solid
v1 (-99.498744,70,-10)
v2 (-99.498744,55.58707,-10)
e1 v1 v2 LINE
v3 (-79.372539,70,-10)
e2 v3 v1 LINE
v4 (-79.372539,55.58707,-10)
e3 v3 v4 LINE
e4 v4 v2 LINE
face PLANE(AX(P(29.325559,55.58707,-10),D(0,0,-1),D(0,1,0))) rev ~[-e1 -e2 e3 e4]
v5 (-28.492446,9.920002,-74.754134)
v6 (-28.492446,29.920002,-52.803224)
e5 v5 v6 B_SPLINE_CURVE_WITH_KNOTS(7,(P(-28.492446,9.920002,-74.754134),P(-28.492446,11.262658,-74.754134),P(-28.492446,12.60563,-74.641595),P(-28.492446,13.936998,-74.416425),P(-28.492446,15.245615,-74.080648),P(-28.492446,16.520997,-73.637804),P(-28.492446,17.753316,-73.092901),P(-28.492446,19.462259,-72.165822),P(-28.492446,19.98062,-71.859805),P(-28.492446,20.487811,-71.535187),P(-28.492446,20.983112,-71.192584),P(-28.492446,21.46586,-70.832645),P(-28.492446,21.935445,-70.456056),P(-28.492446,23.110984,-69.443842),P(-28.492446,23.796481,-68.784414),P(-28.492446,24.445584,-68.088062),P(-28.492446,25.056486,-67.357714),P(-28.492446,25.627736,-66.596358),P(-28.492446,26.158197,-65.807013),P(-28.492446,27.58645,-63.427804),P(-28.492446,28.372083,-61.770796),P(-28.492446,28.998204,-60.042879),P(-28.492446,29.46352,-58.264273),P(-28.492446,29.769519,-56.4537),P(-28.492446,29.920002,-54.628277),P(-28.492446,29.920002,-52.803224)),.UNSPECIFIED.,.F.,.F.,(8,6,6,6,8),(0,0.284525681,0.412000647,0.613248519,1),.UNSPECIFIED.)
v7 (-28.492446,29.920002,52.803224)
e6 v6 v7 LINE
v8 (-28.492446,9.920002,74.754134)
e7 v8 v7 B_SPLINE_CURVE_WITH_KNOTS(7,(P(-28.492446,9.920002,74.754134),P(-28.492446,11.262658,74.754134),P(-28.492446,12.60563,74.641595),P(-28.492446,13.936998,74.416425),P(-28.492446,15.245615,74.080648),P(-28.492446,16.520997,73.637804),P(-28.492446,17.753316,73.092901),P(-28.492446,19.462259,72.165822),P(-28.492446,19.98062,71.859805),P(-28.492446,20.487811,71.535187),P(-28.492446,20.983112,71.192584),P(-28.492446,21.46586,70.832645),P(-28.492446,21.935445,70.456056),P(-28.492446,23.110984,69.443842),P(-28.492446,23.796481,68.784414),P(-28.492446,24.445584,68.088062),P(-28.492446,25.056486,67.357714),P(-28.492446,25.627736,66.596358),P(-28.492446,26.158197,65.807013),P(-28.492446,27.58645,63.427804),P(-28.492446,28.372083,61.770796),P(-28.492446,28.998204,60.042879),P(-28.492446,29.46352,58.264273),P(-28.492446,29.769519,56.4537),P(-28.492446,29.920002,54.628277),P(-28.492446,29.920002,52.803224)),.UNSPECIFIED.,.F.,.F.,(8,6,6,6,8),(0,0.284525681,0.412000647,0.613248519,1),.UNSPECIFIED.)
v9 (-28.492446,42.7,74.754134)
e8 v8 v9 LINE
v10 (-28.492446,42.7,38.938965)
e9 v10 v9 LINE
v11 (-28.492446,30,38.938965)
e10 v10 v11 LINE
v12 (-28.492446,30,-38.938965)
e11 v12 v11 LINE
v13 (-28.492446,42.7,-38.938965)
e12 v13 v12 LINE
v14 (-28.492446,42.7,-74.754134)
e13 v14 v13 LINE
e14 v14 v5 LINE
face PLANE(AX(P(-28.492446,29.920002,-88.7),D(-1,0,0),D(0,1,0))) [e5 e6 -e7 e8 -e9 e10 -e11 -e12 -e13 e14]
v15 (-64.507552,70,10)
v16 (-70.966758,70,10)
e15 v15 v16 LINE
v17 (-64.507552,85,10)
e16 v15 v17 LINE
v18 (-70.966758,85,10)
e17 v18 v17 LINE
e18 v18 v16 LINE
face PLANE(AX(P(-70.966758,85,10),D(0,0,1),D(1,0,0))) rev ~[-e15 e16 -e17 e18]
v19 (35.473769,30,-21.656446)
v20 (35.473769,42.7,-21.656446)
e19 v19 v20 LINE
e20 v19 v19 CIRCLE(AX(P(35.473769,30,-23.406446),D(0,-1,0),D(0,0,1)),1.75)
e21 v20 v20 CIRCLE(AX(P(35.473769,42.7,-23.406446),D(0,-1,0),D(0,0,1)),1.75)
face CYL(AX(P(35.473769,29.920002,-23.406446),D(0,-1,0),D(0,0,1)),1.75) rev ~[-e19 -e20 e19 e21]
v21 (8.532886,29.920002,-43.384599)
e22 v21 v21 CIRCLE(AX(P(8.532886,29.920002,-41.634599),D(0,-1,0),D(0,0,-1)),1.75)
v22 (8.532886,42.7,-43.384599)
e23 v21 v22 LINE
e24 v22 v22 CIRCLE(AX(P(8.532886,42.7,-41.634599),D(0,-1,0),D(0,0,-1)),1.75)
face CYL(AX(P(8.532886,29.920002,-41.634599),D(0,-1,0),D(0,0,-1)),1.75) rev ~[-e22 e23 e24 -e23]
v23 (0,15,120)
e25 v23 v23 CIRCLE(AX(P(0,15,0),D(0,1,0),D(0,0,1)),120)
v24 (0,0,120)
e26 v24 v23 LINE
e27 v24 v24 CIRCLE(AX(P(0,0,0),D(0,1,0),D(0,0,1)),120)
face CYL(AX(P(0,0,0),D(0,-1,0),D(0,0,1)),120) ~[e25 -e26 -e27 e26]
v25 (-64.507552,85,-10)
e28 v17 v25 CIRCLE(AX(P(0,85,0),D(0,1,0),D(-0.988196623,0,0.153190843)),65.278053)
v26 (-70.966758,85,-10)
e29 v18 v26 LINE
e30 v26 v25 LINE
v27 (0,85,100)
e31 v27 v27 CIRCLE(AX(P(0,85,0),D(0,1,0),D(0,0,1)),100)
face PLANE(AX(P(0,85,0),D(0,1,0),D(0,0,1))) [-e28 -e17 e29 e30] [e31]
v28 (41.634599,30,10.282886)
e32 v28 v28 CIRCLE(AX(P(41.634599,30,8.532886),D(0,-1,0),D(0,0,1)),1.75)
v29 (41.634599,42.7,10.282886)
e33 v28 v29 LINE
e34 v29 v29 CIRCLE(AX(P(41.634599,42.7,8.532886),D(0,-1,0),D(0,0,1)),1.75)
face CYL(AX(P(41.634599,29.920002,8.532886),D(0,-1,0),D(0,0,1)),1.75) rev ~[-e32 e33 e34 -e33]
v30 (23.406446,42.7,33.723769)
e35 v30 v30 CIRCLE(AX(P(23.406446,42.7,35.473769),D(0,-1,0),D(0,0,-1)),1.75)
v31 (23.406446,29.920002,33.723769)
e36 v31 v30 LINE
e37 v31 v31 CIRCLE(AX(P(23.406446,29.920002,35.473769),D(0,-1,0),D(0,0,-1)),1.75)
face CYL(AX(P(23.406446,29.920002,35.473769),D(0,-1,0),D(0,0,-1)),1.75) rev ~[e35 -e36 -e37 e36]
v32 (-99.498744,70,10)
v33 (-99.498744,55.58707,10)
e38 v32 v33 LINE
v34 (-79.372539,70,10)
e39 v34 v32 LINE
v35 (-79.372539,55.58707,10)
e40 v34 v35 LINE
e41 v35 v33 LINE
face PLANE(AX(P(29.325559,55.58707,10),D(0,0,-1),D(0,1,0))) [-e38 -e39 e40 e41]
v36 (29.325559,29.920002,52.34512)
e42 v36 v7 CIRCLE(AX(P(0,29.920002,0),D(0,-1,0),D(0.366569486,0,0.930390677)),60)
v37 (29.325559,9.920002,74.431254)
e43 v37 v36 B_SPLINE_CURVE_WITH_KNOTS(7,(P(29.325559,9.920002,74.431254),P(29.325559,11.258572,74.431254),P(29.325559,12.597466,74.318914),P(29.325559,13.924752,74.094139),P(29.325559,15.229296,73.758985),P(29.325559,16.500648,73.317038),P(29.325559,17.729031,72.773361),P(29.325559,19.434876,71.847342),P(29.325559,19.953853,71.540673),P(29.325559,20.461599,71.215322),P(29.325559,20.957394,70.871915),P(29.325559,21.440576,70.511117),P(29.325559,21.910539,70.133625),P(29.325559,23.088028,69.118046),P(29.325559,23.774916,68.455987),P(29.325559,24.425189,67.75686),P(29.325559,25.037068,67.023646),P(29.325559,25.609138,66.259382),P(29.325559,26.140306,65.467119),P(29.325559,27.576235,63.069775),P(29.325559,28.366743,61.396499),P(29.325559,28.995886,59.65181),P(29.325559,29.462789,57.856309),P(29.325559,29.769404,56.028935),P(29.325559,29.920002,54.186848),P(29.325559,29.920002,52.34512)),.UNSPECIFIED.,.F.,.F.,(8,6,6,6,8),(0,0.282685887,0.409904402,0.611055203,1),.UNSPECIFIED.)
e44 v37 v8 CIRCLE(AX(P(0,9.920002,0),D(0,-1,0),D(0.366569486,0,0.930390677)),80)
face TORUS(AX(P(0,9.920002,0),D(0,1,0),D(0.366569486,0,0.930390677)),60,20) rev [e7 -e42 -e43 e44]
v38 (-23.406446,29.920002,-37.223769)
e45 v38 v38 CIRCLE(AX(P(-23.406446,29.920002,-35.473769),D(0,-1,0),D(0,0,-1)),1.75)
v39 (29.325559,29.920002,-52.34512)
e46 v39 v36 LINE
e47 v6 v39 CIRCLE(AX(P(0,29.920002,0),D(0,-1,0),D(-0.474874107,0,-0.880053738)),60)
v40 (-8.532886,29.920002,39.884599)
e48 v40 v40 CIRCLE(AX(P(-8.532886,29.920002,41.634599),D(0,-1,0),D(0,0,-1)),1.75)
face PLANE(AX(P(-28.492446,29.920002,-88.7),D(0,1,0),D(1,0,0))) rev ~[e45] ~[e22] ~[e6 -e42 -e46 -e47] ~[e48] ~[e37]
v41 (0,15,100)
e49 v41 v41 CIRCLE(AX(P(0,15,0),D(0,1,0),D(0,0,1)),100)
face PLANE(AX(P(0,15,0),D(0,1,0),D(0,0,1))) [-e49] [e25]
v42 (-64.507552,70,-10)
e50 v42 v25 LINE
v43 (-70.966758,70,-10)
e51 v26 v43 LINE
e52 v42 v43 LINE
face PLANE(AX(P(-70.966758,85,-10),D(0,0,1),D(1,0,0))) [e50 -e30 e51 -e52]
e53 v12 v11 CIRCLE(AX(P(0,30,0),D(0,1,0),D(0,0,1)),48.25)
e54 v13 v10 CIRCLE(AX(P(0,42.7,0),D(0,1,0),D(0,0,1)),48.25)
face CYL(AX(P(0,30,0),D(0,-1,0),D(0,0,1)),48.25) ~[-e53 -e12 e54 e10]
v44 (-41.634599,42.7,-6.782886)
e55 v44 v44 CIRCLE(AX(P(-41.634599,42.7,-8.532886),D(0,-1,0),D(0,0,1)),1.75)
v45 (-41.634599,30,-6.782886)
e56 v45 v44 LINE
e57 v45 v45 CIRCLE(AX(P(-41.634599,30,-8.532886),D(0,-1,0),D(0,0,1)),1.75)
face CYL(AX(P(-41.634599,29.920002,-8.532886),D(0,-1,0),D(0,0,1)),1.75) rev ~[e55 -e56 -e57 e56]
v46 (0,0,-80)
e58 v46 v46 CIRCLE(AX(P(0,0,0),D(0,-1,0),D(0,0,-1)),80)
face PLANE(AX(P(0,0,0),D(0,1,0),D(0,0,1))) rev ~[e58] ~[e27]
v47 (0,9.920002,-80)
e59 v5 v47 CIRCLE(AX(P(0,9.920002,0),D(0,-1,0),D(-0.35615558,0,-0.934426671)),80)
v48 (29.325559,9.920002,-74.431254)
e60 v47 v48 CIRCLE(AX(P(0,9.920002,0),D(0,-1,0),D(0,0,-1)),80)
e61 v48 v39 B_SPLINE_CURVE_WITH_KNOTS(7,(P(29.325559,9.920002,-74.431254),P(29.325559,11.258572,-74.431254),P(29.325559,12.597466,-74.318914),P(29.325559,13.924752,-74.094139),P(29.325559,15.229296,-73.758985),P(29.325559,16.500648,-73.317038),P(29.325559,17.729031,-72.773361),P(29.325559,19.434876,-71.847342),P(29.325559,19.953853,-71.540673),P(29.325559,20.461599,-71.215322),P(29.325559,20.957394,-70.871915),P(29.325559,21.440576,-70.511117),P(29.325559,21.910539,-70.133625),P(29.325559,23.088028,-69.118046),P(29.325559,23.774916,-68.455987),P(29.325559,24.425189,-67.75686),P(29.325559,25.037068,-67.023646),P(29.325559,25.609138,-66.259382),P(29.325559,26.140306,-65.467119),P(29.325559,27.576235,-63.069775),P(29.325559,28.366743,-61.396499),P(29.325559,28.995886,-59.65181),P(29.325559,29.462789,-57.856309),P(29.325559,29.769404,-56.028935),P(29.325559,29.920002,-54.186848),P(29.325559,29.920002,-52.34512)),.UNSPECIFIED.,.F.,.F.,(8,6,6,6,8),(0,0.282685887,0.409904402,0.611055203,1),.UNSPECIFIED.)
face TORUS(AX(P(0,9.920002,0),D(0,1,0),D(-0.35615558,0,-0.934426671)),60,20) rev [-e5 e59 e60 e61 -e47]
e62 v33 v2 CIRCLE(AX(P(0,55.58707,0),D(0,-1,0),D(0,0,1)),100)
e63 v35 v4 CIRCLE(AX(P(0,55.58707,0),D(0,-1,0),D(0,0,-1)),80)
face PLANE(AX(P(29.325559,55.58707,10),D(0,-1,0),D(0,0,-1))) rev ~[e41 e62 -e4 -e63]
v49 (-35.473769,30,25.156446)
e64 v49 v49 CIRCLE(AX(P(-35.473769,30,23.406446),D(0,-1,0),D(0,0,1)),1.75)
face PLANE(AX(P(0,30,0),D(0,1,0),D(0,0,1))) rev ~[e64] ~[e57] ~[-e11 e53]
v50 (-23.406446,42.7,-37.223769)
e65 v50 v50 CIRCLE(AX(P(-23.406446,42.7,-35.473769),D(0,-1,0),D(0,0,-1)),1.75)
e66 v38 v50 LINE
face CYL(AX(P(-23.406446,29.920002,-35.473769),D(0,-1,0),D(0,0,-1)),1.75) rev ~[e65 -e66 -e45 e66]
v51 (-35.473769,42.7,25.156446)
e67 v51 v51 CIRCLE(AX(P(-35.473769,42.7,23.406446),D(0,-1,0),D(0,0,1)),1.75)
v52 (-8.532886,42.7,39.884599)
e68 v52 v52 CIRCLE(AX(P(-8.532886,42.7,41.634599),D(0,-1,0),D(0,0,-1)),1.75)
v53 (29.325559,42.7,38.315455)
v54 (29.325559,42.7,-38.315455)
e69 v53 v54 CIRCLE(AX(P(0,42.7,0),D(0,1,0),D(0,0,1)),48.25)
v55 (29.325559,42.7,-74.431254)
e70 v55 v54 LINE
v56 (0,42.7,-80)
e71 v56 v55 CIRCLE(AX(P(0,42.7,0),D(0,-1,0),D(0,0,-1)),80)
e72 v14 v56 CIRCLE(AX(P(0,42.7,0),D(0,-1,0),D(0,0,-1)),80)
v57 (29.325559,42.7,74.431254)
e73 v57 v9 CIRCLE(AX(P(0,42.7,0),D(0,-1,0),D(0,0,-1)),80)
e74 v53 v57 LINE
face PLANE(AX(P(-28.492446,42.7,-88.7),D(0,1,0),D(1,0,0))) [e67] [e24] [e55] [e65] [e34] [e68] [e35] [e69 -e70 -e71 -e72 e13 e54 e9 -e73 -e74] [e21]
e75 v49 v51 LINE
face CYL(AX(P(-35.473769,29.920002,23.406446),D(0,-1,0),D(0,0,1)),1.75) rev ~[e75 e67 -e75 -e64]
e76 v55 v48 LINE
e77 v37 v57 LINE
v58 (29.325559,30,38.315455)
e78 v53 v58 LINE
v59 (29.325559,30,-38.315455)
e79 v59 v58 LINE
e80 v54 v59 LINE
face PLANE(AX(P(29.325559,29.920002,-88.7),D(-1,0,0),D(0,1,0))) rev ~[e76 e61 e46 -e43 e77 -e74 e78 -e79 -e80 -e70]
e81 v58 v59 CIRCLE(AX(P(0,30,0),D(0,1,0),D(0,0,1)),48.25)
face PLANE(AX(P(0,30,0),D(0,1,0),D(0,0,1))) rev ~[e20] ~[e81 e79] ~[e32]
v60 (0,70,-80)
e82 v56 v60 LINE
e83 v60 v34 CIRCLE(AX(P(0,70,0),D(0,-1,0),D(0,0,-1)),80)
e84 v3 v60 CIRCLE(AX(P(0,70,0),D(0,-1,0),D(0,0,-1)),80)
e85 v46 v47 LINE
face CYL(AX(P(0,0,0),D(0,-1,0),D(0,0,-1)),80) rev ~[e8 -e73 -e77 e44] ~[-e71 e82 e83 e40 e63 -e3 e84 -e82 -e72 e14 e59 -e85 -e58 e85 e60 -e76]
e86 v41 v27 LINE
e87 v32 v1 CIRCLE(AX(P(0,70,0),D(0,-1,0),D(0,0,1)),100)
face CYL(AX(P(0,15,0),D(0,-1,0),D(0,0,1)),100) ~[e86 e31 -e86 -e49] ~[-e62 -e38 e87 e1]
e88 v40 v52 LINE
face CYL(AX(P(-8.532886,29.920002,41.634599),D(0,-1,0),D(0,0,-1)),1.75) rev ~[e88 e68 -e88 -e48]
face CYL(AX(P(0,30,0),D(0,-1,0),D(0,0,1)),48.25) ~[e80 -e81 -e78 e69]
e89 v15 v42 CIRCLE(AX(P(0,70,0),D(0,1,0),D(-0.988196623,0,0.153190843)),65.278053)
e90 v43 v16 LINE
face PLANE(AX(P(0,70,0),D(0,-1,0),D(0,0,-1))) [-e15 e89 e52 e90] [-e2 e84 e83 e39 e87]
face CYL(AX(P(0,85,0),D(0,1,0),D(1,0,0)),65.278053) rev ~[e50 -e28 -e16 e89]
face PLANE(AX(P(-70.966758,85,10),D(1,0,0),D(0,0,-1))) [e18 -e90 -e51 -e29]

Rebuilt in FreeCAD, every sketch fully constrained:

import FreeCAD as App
import Part
import Sketcher

V = App.Vector
Q = App.Units.Quantity


def edges_at(feature, points):
    """Names of the edges that pass closest to the given points."""
    edges = feature.Shape.Edges
    near = lambda p: min(range(len(edges)), key=lambda i: edges[i].distToShape(Part.Vertex(*p))[0])
    return sorted({f"Edge{near(p) + 1}" for p in points})

doc = App.newDocument("Part")
body = doc.addObject("PartDesign::Body", "Body")

# Sketch on XZ plane
sketch1 = body.newObject("Sketcher::SketchObject", "Sketch")
sketch1.AttachmentSupport = (doc.getObject("XZ_Plane"), [""])
sketch1.MapMode = "FlatFace"
sketch1.addGeometry(Part.Circle(V(0, 0, 0), V(0, 0, 1), 120), False)
sketch1.addConstraint(Sketcher.Constraint("Coincident", 0, 3, -1, 1))
sketch1.addConstraint(Sketcher.Constraint("Diameter", 0, Q("240 mm")))
pad1 = body.newObject("PartDesign::Pad", "Pad")
pad1.Profile = sketch1
pad1.Length = 15
pad1.Reversed = True

# Sketch on XZ plane
sketch2 = body.newObject("Sketcher::SketchObject", "Sketch001")
sketch2.AttachmentSupport = (doc.getObject("XZ_Plane"), [""])
sketch2.MapMode = "FlatFace"
sketch2.AttachmentOffset = App.Placement(V(0, 0, -15), App.Rotation())
sketch2.addGeometry(Part.Circle(V(0, 0, 0), V(0, 0, 1), 100), False)
sketch2.addConstraint(Sketcher.Constraint("Coincident", 0, 3, -1, 1))
sketch2.addConstraint(Sketcher.Constraint("Diameter", 0, Q("200 mm")))
pad2 = body.newObject("PartDesign::Pad", "Pad001")
pad2.Profile = sketch2
pad2.Length = 70
pad2.Reversed = True

# Sketch on XZ plane
sketch3 = body.newObject("Sketcher::SketchObject", "Sketch002")
sketch3.AttachmentSupport = (doc.getObject("XZ_Plane"), [""])
sketch3.MapMode = "FlatFace"
sketch3.addGeometry(Part.Circle(V(0, 0, 0), V(0, 0, 1), 80), False)
sketch3.addConstraint(Sketcher.Constraint("Coincident", 0, 3, -1, 1))
sketch3.addConstraint(Sketcher.Constraint("Diameter", 0, Q("160 mm")))
pocket1 = body.newObject("PartDesign::Pocket", "Pocket")
pocket1.Profile = sketch3
pocket1.Length = 70

# Sketch on XZ plane
sketch4 = body.newObject("Sketcher::SketchObject", "Sketch003")
sketch4.AttachmentSupport = (doc.getObject("XZ_Plane"), [""])
sketch4.MapMode = "FlatFace"
sketch4.AttachmentOffset = App.Placement(V(0, 0, -85), App.Rotation())
sketch4.addGeometry(Part.Circle(V(0, 0, 0), V(0, 0, 1), 48), False)
sketch4.addConstraint(Sketcher.Constraint("Coincident", 0, 3, -1, 1))
sketch4.addConstraint(Sketcher.Constraint("Diameter", 0, Q("96.5 mm")))
pocket2 = body.newObject("PartDesign::Pocket", "Pocket001")
pocket2.Profile = sketch4
pocket2.Length = 65
pocket2.Reversed = True
body2 = doc.addObject("PartDesign::Body", "Body001")

# Sketch on XZ plane
sketch5 = body2.newObject("Sketcher::SketchObject", "Sketch004")
sketch5.AttachmentSupport = (doc.getObject("XZ_Plane001"), [""])
sketch5.MapMode = "FlatFace"
sketch5.AttachmentOffset = App.Placement(V(0, 0, -30), App.Rotation())
sketch5.addGeometry(Part.Circle(V(0, 0, 0), V(0, 0, 1), 48), False)
sketch5.addConstraint(Sketcher.Constraint("Coincident", 0, 3, -1, 1))
sketch5.addConstraint(Sketcher.Constraint("Diameter", 0, Q("96.5 mm")))
pad3 = body2.newObject("PartDesign::Pad", "Pad002")
pad3.Profile = sketch5
pad3.Length = 12.7
pad3.Reversed = True
body.AllowCompound = True
doc.recompute()

boolean = body.newObject("PartDesign::Boolean", "Boolean")
boolean.Type = "Fuse"
boolean.addObjects([body2])

# Sketch on XY plane
sketch6 = body.newObject("Sketcher::SketchObject", "Sketch005")
sketch6.AttachmentSupport = (doc.getObject("XY_Plane"), [""])
sketch6.MapMode = "FlatFace"
sketch6.addGeometry(Part.LineSegment(V(-28, 43, 0), V(-28, 30, 0)), False)
sketch6.addGeometry(Part.LineSegment(V(-28, 30, 0), V(29, 30, 0)), False)
sketch6.addGeometry(Part.LineSegment(V(29, 30, 0), V(29, 43, 0)), False)
sketch6.addGeometry(Part.LineSegment(V(29, 43, 0), V(-28, 43, 0)), False)
sketch6.addConstraint(Sketcher.Constraint("Coincident", 0, 2, 1, 1))
sketch6.addConstraint(Sketcher.Constraint("Coincident", 1, 2, 2, 1))
sketch6.addConstraint(Sketcher.Constraint("Coincident", 2, 2, 3, 1))
sketch6.addConstraint(Sketcher.Constraint("Coincident", 3, 2, 0, 1))
sketch6.addConstraint(Sketcher.Constraint("Vertical", 0))
sketch6.addConstraint(Sketcher.Constraint("Horizontal", 1))
sketch6.addConstraint(Sketcher.Constraint("Vertical", 2))
sketch6.addConstraint(Sketcher.Constraint("Horizontal", 3))
sketch6.addConstraint(Sketcher.Constraint("DistanceY", 0, 2, 0, 1, Q("12.779998 mm")))
sketch6.addConstraint(Sketcher.Constraint("DistanceY", -1, 1, 2, 2, Q("42.7 mm")))
sketch6.addConstraint(Sketcher.Constraint("DistanceX", 1, 1, 1, 2, Q("57.818005 mm")))
sketch6.addConstraint(Sketcher.Constraint("DistanceX", -1, 1, 1, 2, Q("29.325559 mm")))
pad4 = body.newObject("PartDesign::Pad", "Pad003")
pad4.Profile = sketch6
pad4.Type = "TwoLengths"
pad4.Length = 85.7
pad4.Length2 = 88.7
doc.recompute()

fillet = body.newObject("PartDesign::Fillet", "Fillet")
fillet.Base = (pad4, edges_at(pad4, [(0.447, 29.92, 79.999)]))
fillet.Radius = 20
doc.recompute()

fillet2 = body.newObject("PartDesign::Fillet", "Fillet001")
fillet2.Base = (fillet, edges_at(fillet, [(14.925, 29.92, -78.595)]))
fillet2.Radius = 20

# Sketch on XZ plane
sketch7 = body.newObject("Sketcher::SketchObject", "Sketch006")
sketch7.AttachmentSupport = (doc.getObject("XZ_Plane"), [""])
sketch7.MapMode = "FlatFace"
sketch7.AttachmentOffset = App.Placement(V(0, 0, -85), App.Rotation())
sketch7.addGeometry(Part.LineSegment(V(-71, -10, 0), V(-71, 10, 0)), False)
sketch7.addGeometry(Part.LineSegment(V(-71, 10, 0), V(-47, 10, 0)), False)
sketch7.addGeometry(Part.LineSegment(V(-47, 10, 0), V(-47, -10, 0)), False)
sketch7.addGeometry(Part.LineSegment(V(-47, -10, 0), V(-71, -10, 0)), False)
sketch7.addConstraint(Sketcher.Constraint("Coincident", 0, 2, 1, 1))
sketch7.addConstraint(Sketcher.Constraint("Coincident", 1, 2, 2, 1))
sketch7.addConstraint(Sketcher.Constraint("Coincident", 2, 2, 3, 1))
sketch7.addConstraint(Sketcher.Constraint("Coincident", 3, 2, 0, 1))
sketch7.addConstraint(Sketcher.Constraint("Vertical", 0))
sketch7.addConstraint(Sketcher.Constraint("Horizontal", 1))
sketch7.addConstraint(Sketcher.Constraint("Vertical", 2))
sketch7.addConstraint(Sketcher.Constraint("Horizontal", 3))
sketch7.addConstraint(Sketcher.Constraint("DistanceY", 0, 1, 0, 2, Q("20 mm")))
sketch7.addConstraint(Sketcher.Constraint("DistanceY", -1, 1, 0, 2, Q("10 mm")))
sketch7.addConstraint(Sketcher.Constraint("DistanceX", 1, 1, 1, 2, Q("23.933516 mm")))
sketch7.addConstraint(Sketcher.Constraint("DistanceX", 0, 2, -1, 1, Q("70.966758 mm")))
pocket3 = body.newObject("PartDesign::Pocket", "Pocket002")
pocket3.Profile = sketch7
pocket3.Length = 25
pocket3.Reversed = True

# Sketch on XZ plane
sketch8 = body.newObject("Sketcher::SketchObject", "Sketch007")
sketch8.AttachmentSupport = (doc.getObject("XZ_Plane"), [""])
sketch8.MapMode = "FlatFace"
sketch8.AttachmentOffset = App.Placement(V(0, 0, -85), App.Rotation())
sketch8.addGeometry(Part.Circle(V(0, 0, 0), V(0, 0, 1), 65), False)
sketch8.addConstraint(Sketcher.Constraint("Coincident", 0, 3, -1, 1))
sketch8.addConstraint(Sketcher.Constraint("Diameter", 0, Q("130.556106 mm")))
pocket4 = body.newObject("PartDesign::Pocket", "Pocket003")
pocket4.Profile = sketch8
pocket4.Length = 19
pocket4.Reversed = True

# Sketch on YZ plane
sketch9 = body.newObject("Sketcher::SketchObject", "Sketch008")
sketch9.AttachmentSupport = (doc.getObject("YZ_Plane"), [""])
sketch9.MapMode = "FlatFace"
sketch9.AttachmentOffset = App.Placement(V(0, 0, 29.325559), App.Rotation())
sketch9.addGeometry(Part.LineSegment(V(70, 10, 0), V(56, 10, 0)), False)
sketch9.addGeometry(Part.LineSegment(V(56, 10, 0), V(56, -10, 0)), False)
sketch9.addGeometry(Part.LineSegment(V(56, -10, 0), V(70, -10, 0)), False)
sketch9.addGeometry(Part.LineSegment(V(70, -10, 0), V(70, 10, 0)), False)
sketch9.addConstraint(Sketcher.Constraint("Coincident", 0, 2, 1, 1))
sketch9.addConstraint(Sketcher.Constraint("Coincident", 1, 2, 2, 1))
sketch9.addConstraint(Sketcher.Constraint("Coincident", 2, 2, 3, 1))
sketch9.addConstraint(Sketcher.Constraint("Coincident", 3, 2, 0, 1))
sketch9.addConstraint(Sketcher.Constraint("Horizontal", 0))
sketch9.addConstraint(Sketcher.Constraint("Vertical", 1))
sketch9.addConstraint(Sketcher.Constraint("Horizontal", 2))
sketch9.addConstraint(Sketcher.Constraint("Vertical", 3))
sketch9.addConstraint(Sketcher.Constraint("DistanceY", 1, 2, 1, 1, Q("20 mm")))
sketch9.addConstraint(Sketcher.Constraint("DistanceY", -1, 1, 0, 2, Q("10 mm")))
sketch9.addConstraint(Sketcher.Constraint("DistanceX", -1, 1, 2, 2, Q("70 mm")))
sketch9.addConstraint(Sketcher.Constraint("DistanceX", 0, 2, 0, 1, Q("14.41293 mm")))
pocket5 = body.newObject("PartDesign::Pocket", "Pocket004")
pocket5.Profile = sketch9
pocket5.Length = 165

# Sketch on XZ plane
sketch10 = body.newObject("Sketcher::SketchObject", "Sketch009")
sketch10.AttachmentSupport = (doc.getObject("XZ_Plane"), [""])
sketch10.MapMode = "FlatFace"
sketch10.AttachmentOffset = App.Placement(V(0, 0, -29.920002), App.Rotation())
sketch10.addGeometry(Part.Circle(V(-8.5, 41.6, 0), V(0, 0, 1), 1.8), False)
sketch10.addGeometry(Part.Circle(V(23.4, 35.5, 0), V(0, 0, 1), 1.8), False)
sketch10.addGeometry(Part.Circle(V(41.6, 8.5, 0), V(0, 0, 1), 1.8), False)
sketch10.addGeometry(Part.Circle(V(35.5, -23.4, 0), V(0, 0, 1), 1.8), False)
sketch10.addGeometry(Part.Circle(V(8.5, -41.6, 0), V(0, 0, 1), 1.8), False)
sketch10.addGeometry(Part.Circle(V(-23.4, -35.5, 0), V(0, 0, 1), 1.8), False)
sketch10.addGeometry(Part.Circle(V(-41.6, -8.5, 0), V(0, 0, 1), 1.8), False)
sketch10.addGeometry(Part.Circle(V(-35.5, 23.4, 0), V(0, 0, 1), 1.8), False)
sketch10.addConstraint(Sketcher.Constraint("Equal", 0, 1))
sketch10.addConstraint(Sketcher.Constraint("Equal", 1, 2))
sketch10.addConstraint(Sketcher.Constraint("Equal", 2, 3))
sketch10.addConstraint(Sketcher.Constraint("Equal", 3, 4))
sketch10.addConstraint(Sketcher.Constraint("Equal", 4, 5))
sketch10.addConstraint(Sketcher.Constraint("Equal", 5, 6))
sketch10.addConstraint(Sketcher.Constraint("Equal", 6, 7))
sketch10.addConstraint(Sketcher.Constraint("Symmetric", 0, 3, 4, 3, -1, 1))
sketch10.addConstraint(Sketcher.Constraint("Symmetric", 1, 3, 5, 3, -1, 1))
sketch10.addConstraint(Sketcher.Constraint("Symmetric", 2, 3, 6, 3, -1, 1))
sketch10.addConstraint(Sketcher.Constraint("Symmetric", 3, 3, 7, 3, -1, 1))
sketch10.addConstraint(Sketcher.Constraint("Diameter", 0, Q("3.5 mm")))
sketch10.addConstraint(Sketcher.Constraint("DistanceY", -1, 1, 0, 3, Q("41.634599 mm")))
sketch10.addConstraint(Sketcher.Constraint("DistanceX", -1, 1, 2, 3, Q("41.634599 mm")))
sketch10.addConstraint(Sketcher.Constraint("DistanceY", -1, 1, 1, 3, Q("35.473769 mm")))
sketch10.addConstraint(Sketcher.Constraint("DistanceX", -1, 1, 3, 3, Q("35.473769 mm")))
sketch10.addConstraint(Sketcher.Constraint("DistanceX", 0, 3, 1, 3, Q("31.939332 mm")))
sketch10.addConstraint(Sketcher.Constraint("DistanceY", 3, 3, 2, 3, Q("31.939332 mm")))
sketch10.addConstraint(Sketcher.Constraint("DistanceX", 4, 3, 1, 3, Q("14.87356 mm")))
sketch10.addConstraint(Sketcher.Constraint("DistanceY", 3, 3, 6, 3, Q("14.87356 mm")))
pocket6 = body.newObject("PartDesign::Pocket", "Pocket005")
pocket6.Profile = sketch10
pocket6.Length = 25

doc.recompute()
